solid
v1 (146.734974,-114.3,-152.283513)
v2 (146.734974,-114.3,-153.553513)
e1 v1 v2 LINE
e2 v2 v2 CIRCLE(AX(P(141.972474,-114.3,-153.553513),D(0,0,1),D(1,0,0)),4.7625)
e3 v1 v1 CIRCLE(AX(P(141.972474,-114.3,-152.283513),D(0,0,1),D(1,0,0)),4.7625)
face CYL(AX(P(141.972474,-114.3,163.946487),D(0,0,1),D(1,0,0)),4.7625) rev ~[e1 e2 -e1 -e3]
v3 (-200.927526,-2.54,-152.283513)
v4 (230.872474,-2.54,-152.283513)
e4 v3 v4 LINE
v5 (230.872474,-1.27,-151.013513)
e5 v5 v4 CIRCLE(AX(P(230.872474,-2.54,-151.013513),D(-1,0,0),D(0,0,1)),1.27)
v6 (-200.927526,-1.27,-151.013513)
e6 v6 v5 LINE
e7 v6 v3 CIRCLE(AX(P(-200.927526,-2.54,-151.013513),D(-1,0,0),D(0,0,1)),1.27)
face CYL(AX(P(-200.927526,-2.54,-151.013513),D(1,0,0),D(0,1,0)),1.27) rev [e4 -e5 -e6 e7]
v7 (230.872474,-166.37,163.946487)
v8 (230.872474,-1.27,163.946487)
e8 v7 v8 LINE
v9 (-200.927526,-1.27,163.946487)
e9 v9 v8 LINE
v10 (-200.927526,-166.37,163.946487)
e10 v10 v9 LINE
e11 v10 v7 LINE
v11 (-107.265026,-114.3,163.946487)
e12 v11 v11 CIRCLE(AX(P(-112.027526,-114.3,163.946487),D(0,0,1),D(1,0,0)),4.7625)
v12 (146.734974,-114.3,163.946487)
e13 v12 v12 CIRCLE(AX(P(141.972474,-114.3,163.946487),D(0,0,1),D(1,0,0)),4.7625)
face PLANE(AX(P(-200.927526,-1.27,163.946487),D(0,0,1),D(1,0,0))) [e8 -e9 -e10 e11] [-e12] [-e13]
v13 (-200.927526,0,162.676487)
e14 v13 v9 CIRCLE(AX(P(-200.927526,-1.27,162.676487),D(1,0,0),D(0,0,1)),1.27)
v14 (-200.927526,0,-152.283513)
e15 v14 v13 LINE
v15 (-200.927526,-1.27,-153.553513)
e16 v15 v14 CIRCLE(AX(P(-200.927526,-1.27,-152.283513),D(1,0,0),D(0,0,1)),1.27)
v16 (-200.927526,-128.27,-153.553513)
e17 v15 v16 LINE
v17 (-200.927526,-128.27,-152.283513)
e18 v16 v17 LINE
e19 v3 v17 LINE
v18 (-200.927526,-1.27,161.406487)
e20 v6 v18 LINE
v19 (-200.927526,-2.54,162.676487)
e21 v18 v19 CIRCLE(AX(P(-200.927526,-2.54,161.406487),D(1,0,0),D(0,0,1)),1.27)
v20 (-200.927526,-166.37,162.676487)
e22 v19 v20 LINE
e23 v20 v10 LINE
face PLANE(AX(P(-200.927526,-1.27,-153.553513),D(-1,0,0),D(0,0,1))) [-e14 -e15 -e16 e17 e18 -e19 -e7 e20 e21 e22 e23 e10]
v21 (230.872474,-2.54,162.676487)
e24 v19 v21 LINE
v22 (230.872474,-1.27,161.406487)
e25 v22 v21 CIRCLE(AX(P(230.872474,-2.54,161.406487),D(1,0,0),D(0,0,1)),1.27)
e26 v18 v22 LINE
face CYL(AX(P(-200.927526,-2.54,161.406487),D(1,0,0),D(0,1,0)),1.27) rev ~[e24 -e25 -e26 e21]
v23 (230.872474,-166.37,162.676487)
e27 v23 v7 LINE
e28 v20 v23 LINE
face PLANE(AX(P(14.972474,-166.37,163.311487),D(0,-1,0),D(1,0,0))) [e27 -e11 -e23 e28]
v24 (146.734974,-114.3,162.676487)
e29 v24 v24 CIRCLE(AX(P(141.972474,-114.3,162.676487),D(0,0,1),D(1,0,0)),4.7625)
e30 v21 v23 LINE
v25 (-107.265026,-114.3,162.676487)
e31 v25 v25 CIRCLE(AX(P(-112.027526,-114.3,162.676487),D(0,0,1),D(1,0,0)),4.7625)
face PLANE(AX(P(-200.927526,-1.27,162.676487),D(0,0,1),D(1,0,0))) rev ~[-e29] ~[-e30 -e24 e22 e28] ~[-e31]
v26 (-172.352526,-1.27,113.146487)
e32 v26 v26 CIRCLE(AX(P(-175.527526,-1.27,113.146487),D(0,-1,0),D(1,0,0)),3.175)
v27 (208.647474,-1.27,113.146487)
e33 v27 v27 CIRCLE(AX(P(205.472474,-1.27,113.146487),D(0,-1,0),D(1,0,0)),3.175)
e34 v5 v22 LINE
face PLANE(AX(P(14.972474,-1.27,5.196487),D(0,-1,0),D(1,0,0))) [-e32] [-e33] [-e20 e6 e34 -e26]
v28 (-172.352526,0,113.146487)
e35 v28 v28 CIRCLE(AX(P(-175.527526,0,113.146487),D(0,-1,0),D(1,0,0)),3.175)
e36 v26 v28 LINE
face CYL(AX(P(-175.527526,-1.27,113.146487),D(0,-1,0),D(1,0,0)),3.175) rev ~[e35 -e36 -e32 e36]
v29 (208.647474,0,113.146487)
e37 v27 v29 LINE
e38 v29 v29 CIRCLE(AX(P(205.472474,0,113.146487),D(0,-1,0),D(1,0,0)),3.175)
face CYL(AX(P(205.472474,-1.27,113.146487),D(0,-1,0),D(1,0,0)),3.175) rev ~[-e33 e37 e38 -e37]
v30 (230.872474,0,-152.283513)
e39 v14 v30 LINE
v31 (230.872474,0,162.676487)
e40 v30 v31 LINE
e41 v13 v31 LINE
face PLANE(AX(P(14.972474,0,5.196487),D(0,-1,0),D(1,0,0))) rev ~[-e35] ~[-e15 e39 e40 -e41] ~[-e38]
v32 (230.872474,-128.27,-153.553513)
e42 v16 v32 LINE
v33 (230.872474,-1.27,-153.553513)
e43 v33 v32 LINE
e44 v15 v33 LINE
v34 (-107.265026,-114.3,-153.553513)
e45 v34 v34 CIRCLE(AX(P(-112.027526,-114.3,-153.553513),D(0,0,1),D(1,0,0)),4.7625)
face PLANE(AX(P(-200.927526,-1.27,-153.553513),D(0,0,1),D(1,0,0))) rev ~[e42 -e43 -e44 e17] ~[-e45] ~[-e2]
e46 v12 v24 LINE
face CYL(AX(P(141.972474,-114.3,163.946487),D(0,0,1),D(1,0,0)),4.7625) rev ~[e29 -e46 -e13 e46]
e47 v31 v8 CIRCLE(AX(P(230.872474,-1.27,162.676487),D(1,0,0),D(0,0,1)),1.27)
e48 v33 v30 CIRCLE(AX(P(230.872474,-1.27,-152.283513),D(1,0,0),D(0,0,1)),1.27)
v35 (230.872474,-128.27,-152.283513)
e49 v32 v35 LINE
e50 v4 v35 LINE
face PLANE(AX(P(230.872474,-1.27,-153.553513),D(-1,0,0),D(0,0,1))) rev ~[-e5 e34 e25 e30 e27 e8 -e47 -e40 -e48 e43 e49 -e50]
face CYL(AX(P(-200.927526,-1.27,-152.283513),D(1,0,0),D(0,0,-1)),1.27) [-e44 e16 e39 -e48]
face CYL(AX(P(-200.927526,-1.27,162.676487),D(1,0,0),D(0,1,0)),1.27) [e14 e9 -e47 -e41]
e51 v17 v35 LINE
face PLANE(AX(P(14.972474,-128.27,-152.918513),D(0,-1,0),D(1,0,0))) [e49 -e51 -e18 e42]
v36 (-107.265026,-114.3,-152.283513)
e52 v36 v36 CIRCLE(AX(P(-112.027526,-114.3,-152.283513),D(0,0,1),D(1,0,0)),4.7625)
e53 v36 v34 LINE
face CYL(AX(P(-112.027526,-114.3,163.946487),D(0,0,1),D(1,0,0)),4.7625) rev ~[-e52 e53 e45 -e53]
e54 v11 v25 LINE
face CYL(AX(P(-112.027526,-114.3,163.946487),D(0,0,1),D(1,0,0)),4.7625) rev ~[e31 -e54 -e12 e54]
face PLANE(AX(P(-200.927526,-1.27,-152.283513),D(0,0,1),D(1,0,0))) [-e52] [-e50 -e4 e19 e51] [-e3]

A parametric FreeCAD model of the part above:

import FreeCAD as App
import Part
import Sketcher

V = App.Vector
Q = App.Units.Quantity


def edges_at(feature, points):
    """Names of the edges that pass closest to the given points."""
    edges = feature.Shape.Edges
    near = lambda p: min(range(len(edges)), key=lambda i: edges[i].distToShape(Part.Vertex(*p))[0])
    return sorted({f"Edge{near(p) + 1}" for p in points})


def add_polygon(sketch, points):
    """Adds a closed chain of lines whose ends are joined by coincident constraints."""
    first, n = sketch.GeometryCount, len(points)
    for a, b in zip(points, points[1:] + points[:1]):
        sketch.addGeometry(Part.LineSegment(App.Vector(*a, 0), App.Vector(*b, 0)), False)
    for i in range(n):
        sketch.addConstraint(Sketcher.Constraint("Coincident", first + i, 2, first + (i + 1) % n, 1))

doc = App.newDocument("Part")
body = doc.addObject("PartDesign::Body", "Body")

sketch1 = body.newObject("Sketcher::SketchObject", "Sketch")
sketch1.AttachmentSupport = (doc.getObject("XZ_Plane"), [""])
sketch1.MapMode = "FlatFace"
add_polygon(sketch1, [(-201, 164), (-201, -154), (231, -154), (231, 164)])
sketch1.addConstraint([
    Sketcher.Constraint("Vertical", 0),
    Sketcher.Constraint("Horizontal", 1),
    Sketcher.Constraint("Vertical", 2),
    Sketcher.Constraint("Horizontal", 3),
    Sketcher.Constraint("DistanceX", 1, 1, 1, 2, Q("17 in")),
    Sketcher.Constraint("DistanceY", 0, 2, 0, 1, Q("12.5 in")),
    Sketcher.Constraint("DistanceX", 0, 2, -1, 1, 200.927526),
    Sketcher.Constraint("DistanceY", 0, 2, -1, 1, 153.553513),
])
pad1 = body.newObject("PartDesign::Pad", "Pad")
pad1.Profile = sketch1
pad1.Length = Q("0.05 in")

sketch2 = body.newObject("Sketcher::SketchObject", "Sketch001")
sketch2.AttachmentSupport = (doc.getObject("XZ_Plane"), [""])
sketch2.MapMode = "FlatFace"
sketch2.AttachmentOffset = App.Placement(V(0, 0, 0.05 * 25.4), App.Rotation())
add_polygon(sketch2, [(-200.9, 163.9), (-200.9, 162.7), (230.9, 162.7), (230.9, 163.9)])
sketch2.addConstraint([
    Sketcher.Constraint("Vertical", 0),
    Sketcher.Constraint("Horizontal", 1),
    Sketcher.Constraint("Vertical", 2),
    Sketcher.Constraint("Horizontal", 3),
    Sketcher.Constraint("DistanceX", 1, 1, 1, 2, Q("17 in")),
    Sketcher.Constraint("DistanceY", 0, 2, 0, 1, Q("0.05 in")),
    Sketcher.Constraint("DistanceX", 0, 2, -1, 1, 200.927526),
    Sketcher.Constraint("DistanceY", -1, 1, 0, 2, 162.676487),
])
pad2 = body.newObject("PartDesign::Pad", "Pad001")
pad2.Profile = sketch2
pad2.Length = Q("6.5 in")
doc.recompute()

fillet = body.newObject("PartDesign::Fillet", "Fillet")
fillet.Base = (pad2, edges_at(pad2, [(14.972, -1.27, 162.676), (14.972, 0, 163.946)]))
fillet.Radius = Q("0.05 in")

sketch3 = body.newObject("Sketcher::SketchObject", "Sketch002")
sketch3.AttachmentSupport = (doc.getObject("XZ_Plane"), [""])
sketch3.MapMode = "FlatFace"
sketch3.AttachmentOffset = App.Placement(V(0, 0, 0.05 * 25.4), App.Rotation())
add_polygon(sketch3, [(-200.9, -152.3), (-200.9, -153.6), (230.9, -153.6), (230.9, -152.3)])
sketch3.addConstraint([
    Sketcher.Constraint("Vertical", 0),
    Sketcher.Constraint("Horizontal", 1),
    Sketcher.Constraint("Vertical", 2),
    Sketcher.Constraint("Horizontal", 3),
    Sketcher.Constraint("DistanceX", 1, 1, 1, 2, Q("17 in")),
    Sketcher.Constraint("DistanceY", 0, 2, 0, 1, Q("0.05 in")),
    Sketcher.Constraint("DistanceX", 0, 2, -1, 1, 200.927526),
    Sketcher.Constraint("DistanceY", 0, 2, -1, 1, 153.553513),
])
pad3 = body.newObject("PartDesign::Pad", "Pad002")
pad3.Profile = sketch3
pad3.Length = Q("5 in")
doc.recompute()

fillet2 = body.newObject("PartDesign::Fillet", "Fillet001")
fillet2.Base = (pad3, edges_at(pad3, [(14.972, -1.27, -152.284), (14.972, 0, -153.554)]))
fillet2.Radius = Q("0.05 in")

sketch4 = body.newObject("Sketcher::SketchObject", "Sketch003")
sketch4.AttachmentSupport = (doc.getObject("XZ_Plane"), [""])
sketch4.MapMode = "FlatFace"
sketch4.AttachmentOffset = App.Placement(V(0, 0, 0.05 * 25.4), App.Rotation())
sketch4.addGeometry([
    Part.Circle(V(-175.5, 113.1, 0), V(0, 0, 1), 3.2),
    Part.Circle(V(205.5, 113.1, 0), V(0, 0, 1), 3.2),
], False)
sketch4.addConstraint([
    Sketcher.Constraint("Equal", 0, 1),
    Sketcher.Constraint("Horizontal", 0, 3, 1, 3),
    Sketcher.Constraint("Diameter", 0, Q("0.25 in")),
    Sketcher.Constraint("DistanceX", 0, 3, 1, 3, Q("15 in")),
    Sketcher.Constraint("DistanceX", 0, 3, -1, 1, 175.527526),
    Sketcher.Constraint("DistanceY", -1, 1, 0, 3, 113.146487),
])
pocket1 = body.newObject("PartDesign::Pocket", "Pocket")
pocket1.Profile = sketch4
pocket1.Length = Q("1 in")

sketch5 = body.newObject("Sketcher::SketchObject", "Sketch004")
sketch5.AttachmentSupport = (doc.getObject("XY_Plane"), [""])
sketch5.MapMode = "FlatFace"
sketch5.AttachmentOffset = App.Placement(V(0, 0, 163.946487), App.Rotation())
sketch5.addGeometry([
    Part.Circle(V(-112, -114.3, 0), V(0, 0, 1), 4.8),
    Part.Circle(V(142, -114.3, 0), V(0, 0, 1), 4.8),
], False)
sketch5.addConstraint([
    Sketcher.Constraint("Equal", 0, 1),
    Sketcher.Constraint("Horizontal", 0, 3, 1, 3),
    Sketcher.Constraint("Diameter", 0, Q("0.375 in")),
    Sketcher.Constraint("DistanceX", 0, 3, 1, 3, Q("10 in")),
    Sketcher.Constraint("DistanceY", 0, 3, -1, 1, Q("4.5 in")),
    Sketcher.Constraint("DistanceX", 0, 3, -1, 1, 112.027526),
])
pocket2 = body.newObject("PartDesign::Pocket", "Pocket001")
pocket2.Profile = sketch5
pocket2.Type = "ThroughAll"

doc.recompute()
